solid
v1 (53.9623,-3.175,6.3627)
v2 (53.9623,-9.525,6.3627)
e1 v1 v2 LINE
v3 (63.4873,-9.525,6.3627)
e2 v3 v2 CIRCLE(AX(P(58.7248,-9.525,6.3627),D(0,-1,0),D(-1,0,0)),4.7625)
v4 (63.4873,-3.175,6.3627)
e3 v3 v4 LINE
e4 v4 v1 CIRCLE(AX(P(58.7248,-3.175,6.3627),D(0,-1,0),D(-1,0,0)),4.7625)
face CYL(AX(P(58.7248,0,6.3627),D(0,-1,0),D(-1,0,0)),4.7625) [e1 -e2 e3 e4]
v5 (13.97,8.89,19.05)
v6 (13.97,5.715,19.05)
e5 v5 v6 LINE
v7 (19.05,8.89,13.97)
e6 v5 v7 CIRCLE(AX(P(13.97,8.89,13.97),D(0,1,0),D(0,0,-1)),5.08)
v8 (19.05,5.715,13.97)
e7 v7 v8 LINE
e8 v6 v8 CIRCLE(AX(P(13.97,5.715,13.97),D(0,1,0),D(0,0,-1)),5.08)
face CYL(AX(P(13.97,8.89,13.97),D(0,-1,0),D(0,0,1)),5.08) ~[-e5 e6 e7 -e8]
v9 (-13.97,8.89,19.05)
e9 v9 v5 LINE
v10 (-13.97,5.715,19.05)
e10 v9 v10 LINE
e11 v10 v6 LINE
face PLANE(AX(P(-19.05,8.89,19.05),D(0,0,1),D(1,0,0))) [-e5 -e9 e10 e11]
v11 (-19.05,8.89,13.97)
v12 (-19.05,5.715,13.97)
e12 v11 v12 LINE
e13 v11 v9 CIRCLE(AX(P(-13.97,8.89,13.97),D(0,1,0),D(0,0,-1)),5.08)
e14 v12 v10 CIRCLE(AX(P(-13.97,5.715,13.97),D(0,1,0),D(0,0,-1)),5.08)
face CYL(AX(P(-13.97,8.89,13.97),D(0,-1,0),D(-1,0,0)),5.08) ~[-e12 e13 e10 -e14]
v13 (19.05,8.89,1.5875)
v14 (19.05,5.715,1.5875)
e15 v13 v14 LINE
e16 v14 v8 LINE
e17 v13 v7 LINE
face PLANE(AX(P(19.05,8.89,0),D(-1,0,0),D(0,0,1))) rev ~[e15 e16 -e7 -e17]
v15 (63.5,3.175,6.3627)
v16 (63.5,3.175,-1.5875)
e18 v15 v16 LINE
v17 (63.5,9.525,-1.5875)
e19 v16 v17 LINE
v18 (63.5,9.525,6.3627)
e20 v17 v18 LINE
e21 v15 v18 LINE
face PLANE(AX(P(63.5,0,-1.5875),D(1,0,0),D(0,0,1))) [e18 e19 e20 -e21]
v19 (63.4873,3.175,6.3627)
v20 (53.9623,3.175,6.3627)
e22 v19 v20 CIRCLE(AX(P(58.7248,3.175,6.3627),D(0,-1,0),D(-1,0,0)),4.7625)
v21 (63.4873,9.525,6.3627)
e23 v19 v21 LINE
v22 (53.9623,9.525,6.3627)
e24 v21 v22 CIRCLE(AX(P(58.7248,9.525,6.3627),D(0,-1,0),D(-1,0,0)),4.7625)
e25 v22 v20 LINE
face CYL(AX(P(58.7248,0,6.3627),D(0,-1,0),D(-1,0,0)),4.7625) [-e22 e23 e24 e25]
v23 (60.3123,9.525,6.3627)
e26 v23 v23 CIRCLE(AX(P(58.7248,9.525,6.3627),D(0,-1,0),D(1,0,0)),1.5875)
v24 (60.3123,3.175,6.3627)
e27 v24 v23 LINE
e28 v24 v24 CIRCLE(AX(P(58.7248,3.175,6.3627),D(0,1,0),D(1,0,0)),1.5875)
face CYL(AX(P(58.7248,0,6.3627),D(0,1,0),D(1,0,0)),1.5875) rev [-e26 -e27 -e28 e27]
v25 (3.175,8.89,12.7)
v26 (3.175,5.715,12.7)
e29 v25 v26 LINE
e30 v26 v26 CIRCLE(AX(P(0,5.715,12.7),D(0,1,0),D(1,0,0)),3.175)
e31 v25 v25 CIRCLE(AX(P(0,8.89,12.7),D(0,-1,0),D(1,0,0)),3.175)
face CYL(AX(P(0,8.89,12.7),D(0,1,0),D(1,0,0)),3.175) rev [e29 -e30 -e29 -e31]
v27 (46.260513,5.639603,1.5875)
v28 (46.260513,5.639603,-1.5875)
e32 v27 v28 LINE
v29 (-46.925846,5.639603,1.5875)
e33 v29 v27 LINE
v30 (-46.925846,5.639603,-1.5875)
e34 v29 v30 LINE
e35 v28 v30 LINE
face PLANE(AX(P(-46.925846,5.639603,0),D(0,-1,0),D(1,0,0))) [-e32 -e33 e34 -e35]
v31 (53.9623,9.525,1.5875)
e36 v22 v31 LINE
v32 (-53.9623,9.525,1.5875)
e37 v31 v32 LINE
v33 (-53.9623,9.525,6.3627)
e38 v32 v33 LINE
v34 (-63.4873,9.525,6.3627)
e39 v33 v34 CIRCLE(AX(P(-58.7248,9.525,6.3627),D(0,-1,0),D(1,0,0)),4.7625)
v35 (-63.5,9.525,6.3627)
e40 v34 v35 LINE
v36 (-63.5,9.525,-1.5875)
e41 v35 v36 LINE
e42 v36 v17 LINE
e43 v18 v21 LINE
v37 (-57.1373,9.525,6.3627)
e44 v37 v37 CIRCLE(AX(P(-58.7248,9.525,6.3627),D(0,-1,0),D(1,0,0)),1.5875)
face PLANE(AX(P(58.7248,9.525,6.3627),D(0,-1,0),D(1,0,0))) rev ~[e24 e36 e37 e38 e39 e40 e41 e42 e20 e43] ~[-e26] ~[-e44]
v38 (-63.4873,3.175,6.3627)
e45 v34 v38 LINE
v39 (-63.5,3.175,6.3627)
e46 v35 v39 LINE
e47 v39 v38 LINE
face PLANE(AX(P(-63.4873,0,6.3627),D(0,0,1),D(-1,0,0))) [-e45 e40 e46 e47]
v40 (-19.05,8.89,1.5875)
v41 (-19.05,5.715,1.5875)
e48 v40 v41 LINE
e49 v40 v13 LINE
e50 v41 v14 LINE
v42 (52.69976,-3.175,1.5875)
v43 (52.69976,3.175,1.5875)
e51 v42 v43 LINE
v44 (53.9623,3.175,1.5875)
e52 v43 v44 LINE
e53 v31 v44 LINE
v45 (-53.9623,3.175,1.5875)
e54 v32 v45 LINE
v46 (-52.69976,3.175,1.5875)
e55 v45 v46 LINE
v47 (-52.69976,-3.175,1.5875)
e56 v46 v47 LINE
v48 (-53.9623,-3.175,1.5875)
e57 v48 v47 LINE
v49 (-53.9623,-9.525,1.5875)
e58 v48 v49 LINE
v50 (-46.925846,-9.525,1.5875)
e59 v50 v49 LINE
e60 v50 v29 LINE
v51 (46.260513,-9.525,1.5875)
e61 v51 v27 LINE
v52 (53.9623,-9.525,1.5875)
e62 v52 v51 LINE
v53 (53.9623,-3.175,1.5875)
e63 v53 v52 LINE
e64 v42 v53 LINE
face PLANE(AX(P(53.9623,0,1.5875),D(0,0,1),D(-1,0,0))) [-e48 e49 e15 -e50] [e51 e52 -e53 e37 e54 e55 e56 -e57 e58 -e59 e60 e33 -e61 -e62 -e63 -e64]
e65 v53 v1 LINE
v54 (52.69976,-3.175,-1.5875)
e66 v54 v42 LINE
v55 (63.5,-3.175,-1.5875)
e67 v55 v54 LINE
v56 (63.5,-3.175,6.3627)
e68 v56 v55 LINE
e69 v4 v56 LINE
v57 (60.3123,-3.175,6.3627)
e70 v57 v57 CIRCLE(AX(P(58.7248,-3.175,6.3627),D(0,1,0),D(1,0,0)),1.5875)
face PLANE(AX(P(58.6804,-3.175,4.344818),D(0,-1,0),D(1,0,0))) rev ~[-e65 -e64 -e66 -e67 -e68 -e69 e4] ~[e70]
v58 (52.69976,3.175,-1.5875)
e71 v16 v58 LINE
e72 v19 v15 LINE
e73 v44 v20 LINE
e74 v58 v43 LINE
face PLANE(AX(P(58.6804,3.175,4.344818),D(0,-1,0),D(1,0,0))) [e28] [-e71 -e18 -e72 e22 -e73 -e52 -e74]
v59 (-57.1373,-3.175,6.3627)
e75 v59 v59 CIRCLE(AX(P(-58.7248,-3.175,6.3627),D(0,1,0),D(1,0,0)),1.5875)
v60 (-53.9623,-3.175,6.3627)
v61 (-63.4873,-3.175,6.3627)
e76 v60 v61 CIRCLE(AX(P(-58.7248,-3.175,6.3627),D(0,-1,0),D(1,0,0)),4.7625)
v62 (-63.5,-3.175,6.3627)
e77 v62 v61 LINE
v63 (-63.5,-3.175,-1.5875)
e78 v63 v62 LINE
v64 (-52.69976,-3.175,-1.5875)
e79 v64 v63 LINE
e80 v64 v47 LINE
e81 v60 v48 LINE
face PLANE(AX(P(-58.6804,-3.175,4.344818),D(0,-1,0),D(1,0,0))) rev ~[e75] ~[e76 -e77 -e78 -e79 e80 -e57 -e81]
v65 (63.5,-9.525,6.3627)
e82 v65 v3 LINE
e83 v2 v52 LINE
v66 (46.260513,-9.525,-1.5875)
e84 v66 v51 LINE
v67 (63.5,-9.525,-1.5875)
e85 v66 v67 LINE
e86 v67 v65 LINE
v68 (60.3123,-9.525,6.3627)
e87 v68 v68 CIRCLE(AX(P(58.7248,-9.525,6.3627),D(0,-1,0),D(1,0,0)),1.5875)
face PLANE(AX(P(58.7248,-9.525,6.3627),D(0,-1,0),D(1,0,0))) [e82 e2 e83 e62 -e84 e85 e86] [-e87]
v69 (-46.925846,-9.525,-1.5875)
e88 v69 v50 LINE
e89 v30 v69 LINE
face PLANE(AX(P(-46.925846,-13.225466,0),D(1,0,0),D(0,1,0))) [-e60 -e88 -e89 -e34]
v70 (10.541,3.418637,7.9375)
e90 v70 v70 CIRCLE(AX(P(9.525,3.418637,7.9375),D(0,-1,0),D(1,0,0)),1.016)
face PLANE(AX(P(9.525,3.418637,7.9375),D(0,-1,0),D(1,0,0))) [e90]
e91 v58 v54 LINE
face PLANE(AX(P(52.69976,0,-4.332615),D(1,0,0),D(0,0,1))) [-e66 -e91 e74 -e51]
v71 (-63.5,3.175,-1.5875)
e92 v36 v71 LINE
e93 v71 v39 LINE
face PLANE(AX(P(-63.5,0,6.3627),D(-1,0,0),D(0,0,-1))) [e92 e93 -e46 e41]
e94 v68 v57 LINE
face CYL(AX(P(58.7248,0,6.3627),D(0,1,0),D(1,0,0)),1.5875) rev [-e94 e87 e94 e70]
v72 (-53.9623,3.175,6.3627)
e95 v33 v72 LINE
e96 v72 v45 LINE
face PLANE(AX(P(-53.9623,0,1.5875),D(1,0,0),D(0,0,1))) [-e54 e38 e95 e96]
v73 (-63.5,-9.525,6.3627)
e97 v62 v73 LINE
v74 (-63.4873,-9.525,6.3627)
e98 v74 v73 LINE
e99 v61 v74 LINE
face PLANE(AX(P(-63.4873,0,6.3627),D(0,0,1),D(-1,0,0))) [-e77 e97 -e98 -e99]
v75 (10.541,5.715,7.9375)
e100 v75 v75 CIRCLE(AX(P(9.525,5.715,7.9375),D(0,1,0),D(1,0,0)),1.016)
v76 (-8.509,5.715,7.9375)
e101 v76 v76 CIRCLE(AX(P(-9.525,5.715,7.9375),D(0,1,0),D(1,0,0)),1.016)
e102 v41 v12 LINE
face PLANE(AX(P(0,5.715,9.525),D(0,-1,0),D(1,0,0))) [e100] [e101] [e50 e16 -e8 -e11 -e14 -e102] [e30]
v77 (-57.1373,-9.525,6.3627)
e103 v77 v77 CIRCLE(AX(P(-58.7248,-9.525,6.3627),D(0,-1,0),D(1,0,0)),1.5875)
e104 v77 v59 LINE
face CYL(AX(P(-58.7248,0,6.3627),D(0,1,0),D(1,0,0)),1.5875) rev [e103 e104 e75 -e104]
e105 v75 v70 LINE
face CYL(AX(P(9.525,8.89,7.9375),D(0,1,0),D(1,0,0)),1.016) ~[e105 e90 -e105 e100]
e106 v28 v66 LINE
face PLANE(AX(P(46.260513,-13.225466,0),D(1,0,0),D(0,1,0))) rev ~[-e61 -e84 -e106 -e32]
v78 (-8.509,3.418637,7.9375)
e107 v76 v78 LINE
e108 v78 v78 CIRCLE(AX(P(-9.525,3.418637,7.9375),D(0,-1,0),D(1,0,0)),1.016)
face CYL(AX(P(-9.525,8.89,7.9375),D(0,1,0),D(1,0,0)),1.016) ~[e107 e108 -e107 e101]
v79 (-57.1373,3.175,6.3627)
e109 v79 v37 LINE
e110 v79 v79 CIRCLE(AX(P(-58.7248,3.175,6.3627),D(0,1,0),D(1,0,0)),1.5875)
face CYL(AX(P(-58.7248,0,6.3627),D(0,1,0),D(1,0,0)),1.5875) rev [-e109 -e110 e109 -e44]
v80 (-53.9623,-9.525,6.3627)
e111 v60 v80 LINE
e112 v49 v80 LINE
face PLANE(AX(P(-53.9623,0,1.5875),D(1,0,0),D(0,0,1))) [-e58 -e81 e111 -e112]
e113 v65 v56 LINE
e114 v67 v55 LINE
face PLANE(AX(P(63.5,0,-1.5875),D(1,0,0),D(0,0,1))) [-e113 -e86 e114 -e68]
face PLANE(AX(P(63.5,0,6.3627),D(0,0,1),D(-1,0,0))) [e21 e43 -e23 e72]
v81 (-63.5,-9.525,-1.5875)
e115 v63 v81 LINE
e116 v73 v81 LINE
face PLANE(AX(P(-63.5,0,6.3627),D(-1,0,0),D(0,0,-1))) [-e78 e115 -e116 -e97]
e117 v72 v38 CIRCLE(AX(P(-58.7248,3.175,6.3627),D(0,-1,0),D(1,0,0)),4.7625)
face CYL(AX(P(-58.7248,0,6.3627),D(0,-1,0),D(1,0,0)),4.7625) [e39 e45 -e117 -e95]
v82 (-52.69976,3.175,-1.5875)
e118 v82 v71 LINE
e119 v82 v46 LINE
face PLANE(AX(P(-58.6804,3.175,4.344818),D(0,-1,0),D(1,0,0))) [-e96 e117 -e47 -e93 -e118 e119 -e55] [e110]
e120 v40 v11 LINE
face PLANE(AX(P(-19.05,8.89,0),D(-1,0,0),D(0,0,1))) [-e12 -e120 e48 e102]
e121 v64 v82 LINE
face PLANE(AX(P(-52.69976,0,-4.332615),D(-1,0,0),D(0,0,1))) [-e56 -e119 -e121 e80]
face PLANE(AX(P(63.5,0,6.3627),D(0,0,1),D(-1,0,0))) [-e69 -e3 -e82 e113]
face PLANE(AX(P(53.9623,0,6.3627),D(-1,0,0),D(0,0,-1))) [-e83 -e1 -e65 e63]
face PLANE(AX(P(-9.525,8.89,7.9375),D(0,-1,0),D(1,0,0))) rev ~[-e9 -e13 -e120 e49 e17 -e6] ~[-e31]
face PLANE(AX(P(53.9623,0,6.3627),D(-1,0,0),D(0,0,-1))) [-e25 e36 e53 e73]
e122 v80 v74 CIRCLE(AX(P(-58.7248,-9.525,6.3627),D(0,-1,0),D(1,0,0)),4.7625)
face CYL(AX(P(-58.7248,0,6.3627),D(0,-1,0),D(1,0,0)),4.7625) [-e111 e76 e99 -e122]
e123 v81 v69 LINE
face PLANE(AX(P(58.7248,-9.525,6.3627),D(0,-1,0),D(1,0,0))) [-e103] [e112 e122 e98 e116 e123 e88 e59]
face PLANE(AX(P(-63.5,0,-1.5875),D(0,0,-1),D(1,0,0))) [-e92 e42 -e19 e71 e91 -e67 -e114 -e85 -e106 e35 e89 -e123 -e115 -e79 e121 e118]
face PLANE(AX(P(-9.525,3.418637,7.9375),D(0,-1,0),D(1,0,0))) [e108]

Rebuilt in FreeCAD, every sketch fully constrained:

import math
import FreeCAD as App
import Part
import Sketcher
from FreeCAD import Vector
Q = App.Units.Quantity


def edges_at(feature, points):
    """Names of the edges that pass closest to the given points."""
    edges = feature.Shape.Edges
    near = lambda p: min(range(len(edges)), key=lambda i: edges[i].distToShape(Part.Vertex(*p))[0])
    return sorted({f"Edge{near(p) + 1}" for p in points})

doc = App.newDocument("Part")
body = doc.addObject("PartDesign::Body", "Body")

# Sketch on XZ plane
sketch1 = body.newObject("Sketcher::SketchObject", "Sketch")
sketch1.AttachmentSupport = (doc.getObject("XZ_Plane"), [""])
sketch1.MapMode = "FlatFace"
sketch1.addGeometry(Part.ArcOfCircle(Part.Circle(Vector(58.7248, 6.3627, 0), Vector(0, 0, 1), 4.7625), math.radians(0), math.radians(180)), False)
sketch1.addGeometry(Part.LineSegment(Vector(53.9623, 6.3627, 0), Vector(53.9623, 1.5875, 0)), False)
sketch1.addGeometry(Part.LineSegment(Vector(53.9623, 1.5875, 0), Vector(-53.9623, 1.5875, 0)), False)
sketch1.addGeometry(Part.LineSegment(Vector(-53.9623, 1.5875, 0), Vector(-53.9623, 6.3627, 0)), False)
sketch1.addGeometry(Part.ArcOfCircle(Part.Circle(Vector(-58.7248, 6.3627, 0), Vector(0, 0, 1), 4.7625), math.radians(0), math.radians(180)), False)
sketch1.addGeometry(Part.LineSegment(Vector(-63.4873, 6.3627, 0), Vector(-63.5, 6.3627, 0)), False)
sketch1.addGeometry(Part.LineSegment(Vector(-63.5, 6.3627, 0), Vector(-63.5, -1.5875, 0)), False)
sketch1.addGeometry(Part.LineSegment(Vector(-63.5, -1.5875, 0), Vector(63.5, -1.5875, 0)), False)
sketch1.addGeometry(Part.LineSegment(Vector(63.5, -1.5875, 0), Vector(63.5, 6.3627, 0)), False)
sketch1.addGeometry(Part.LineSegment(Vector(63.5, 6.3627, 0), Vector(63.4873, 6.3627, 0)), False)
sketch1.addGeometry(Part.Circle(Vector(58.7248, 6.3627, 0), Vector(0, 0, 1), 1.5875), False)
sketch1.addGeometry(Part.Circle(Vector(-58.7248, 6.3627, 0), Vector(0, 0, 1), 1.5875), False)
sketch1.addConstraint(Sketcher.Constraint("Tangent", 0, 2, 1, 1))
sketch1.addConstraint(Sketcher.Constraint("Coincident", 1, 2, 2, 1))
sketch1.addConstraint(Sketcher.Constraint("Coincident", 2, 2, 3, 1))
sketch1.addConstraint(Sketcher.Constraint("Tangent", 3, 2, 4, 1))
sketch1.addConstraint(Sketcher.Constraint("Coincident", 4, 2, 5, 1))
sketch1.addConstraint(Sketcher.Constraint("Coincident", 5, 2, 6, 1))
sketch1.addConstraint(Sketcher.Constraint("Coincident", 6, 2, 7, 1))
sketch1.addConstraint(Sketcher.Constraint("Coincident", 7, 2, 8, 1))
sketch1.addConstraint(Sketcher.Constraint("Coincident", 8, 2, 9, 1))
sketch1.addConstraint(Sketcher.Constraint("Coincident", 9, 2, 0, 1))
sketch1.addConstraint(Sketcher.Constraint("Vertical", 1))
sketch1.addConstraint(Sketcher.Constraint("Horizontal", 2))
sketch1.addConstraint(Sketcher.Constraint("Vertical", 3))
sketch1.addConstraint(Sketcher.Constraint("Horizontal", 5))
sketch1.addConstraint(Sketcher.Constraint("Vertical", 6))
sketch1.addConstraint(Sketcher.Constraint("Horizontal", 7))
sketch1.addConstraint(Sketcher.Constraint("Vertical", 8))
sketch1.addConstraint(Sketcher.Constraint("Horizontal", 9))
sketch1.addConstraint(Sketcher.Constraint("Coincident", 10, 3, 0, 3))
sketch1.addConstraint(Sketcher.Constraint("Coincident", 11, 3, 4, 3))
sketch1.addConstraint(Sketcher.Constraint("Equal", 0, 4))
sketch1.addConstraint(Sketcher.Constraint("Equal", 10, 11))
sketch1.addConstraint(Sketcher.Constraint("Symmetric", 0, 3, 4, 3, -2))
sketch1.addConstraint(Sketcher.Constraint("Symmetric", 5, 2, 8, 2, -2))
sketch1.addConstraint(Sketcher.Constraint("Horizontal", 3, 2, 4, 2))
sketch1.addConstraint(Sketcher.Constraint("DistanceX", 7, 1, 7, 2, Q("5 in")))
sketch1.addConstraint(Sketcher.Constraint("Diameter", 10, Q("0.125 in")))
sketch1.addConstraint(Sketcher.Constraint("Radius", 0, Q("0.1875 in")))
sketch1.addConstraint(Sketcher.Constraint("DistanceX", 2, 2, 2, 1, Q("4.249 in")))
sketch1.addConstraint(Sketcher.Constraint("DistanceY", 1, 2, 1, 1, Q("0.188 in")))
sketch1.addConstraint(Sketcher.Constraint("DistanceY", 6, 2, 6, 1, Q("0.313 in")))
sketch1.addConstraint(Sketcher.Constraint("DistanceY", -1, 1, 1, 2, Q("0.0625 in")))
pad1 = body.newObject("PartDesign::Pad", "Pad")
pad1.Profile = sketch1
pad1.Length = Q("0.75 in")
pad1.Midplane = True

# Sketch on XZ plane
sketch2 = body.newObject("Sketcher::SketchObject", "Sketch001")
sketch2.AttachmentSupport = (doc.getObject("XZ_Plane"), [""])
sketch2.MapMode = "FlatFace"
sketch2.addGeometry(Part.LineSegment(Vector(-64.661041, 13.022251, 0), Vector(-64.661041, -4.332615, 0)), False)
sketch2.addGeometry(Part.LineSegment(Vector(-64.661041, -4.332615, 0), Vector(-52.69976, -4.332615, 0)), False)
sketch2.addGeometry(Part.LineSegment(Vector(-52.69976, -4.332615, 0), Vector(-52.69976, 13.022251, 0)), False)
sketch2.addGeometry(Part.LineSegment(Vector(-52.69976, 13.022251, 0), Vector(-64.661041, 13.022251, 0)), False)
sketch2.addGeometry(Part.LineSegment(Vector(52.69976, 13.022251, 0), Vector(52.69976, -4.332615, 0)), False)
sketch2.addGeometry(Part.LineSegment(Vector(52.69976, -4.332615, 0), Vector(64.661041, -4.332615, 0)), False)
sketch2.addGeometry(Part.LineSegment(Vector(64.661041, -4.332615, 0), Vector(64.661041, 13.022251, 0)), False)
sketch2.addGeometry(Part.LineSegment(Vector(64.661041, 13.022251, 0), Vector(52.69976, 13.022251, 0)), False)
sketch2.addConstraint(Sketcher.Constraint("Coincident", 0, 2, 1, 1))
sketch2.addConstraint(Sketcher.Constraint("Coincident", 1, 2, 2, 1))
sketch2.addConstraint(Sketcher.Constraint("Coincident", 2, 2, 3, 1))
sketch2.addConstraint(Sketcher.Constraint("Coincident", 3, 2, 0, 1))
sketch2.addConstraint(Sketcher.Constraint("Coincident", 4, 2, 5, 1))
sketch2.addConstraint(Sketcher.Constraint("Coincident", 5, 2, 6, 1))
sketch2.addConstraint(Sketcher.Constraint("Coincident", 6, 2, 7, 1))
sketch2.addConstraint(Sketcher.Constraint("Coincident", 7, 2, 4, 1))
sketch2.addConstraint(Sketcher.Constraint("Vertical", 0))
sketch2.addConstraint(Sketcher.Constraint("Horizontal", 1))
sketch2.addConstraint(Sketcher.Constraint("Vertical", 2))
sketch2.addConstraint(Sketcher.Constraint("Horizontal", 3))
sketch2.addConstraint(Sketcher.Constraint("Vertical", 4))
sketch2.addConstraint(Sketcher.Constraint("Horizontal", 5))
sketch2.addConstraint(Sketcher.Constraint("Vertical", 6))
sketch2.addConstraint(Sketcher.Constraint("Horizontal", 7))
sketch2.addConstraint(Sketcher.Constraint("Symmetric", 1, 2, 4, 2, -2))
sketch2.addConstraint(Sketcher.Constraint("Symmetric", 3, 2, 6, 2, -2))
sketch2.addConstraint(Sketcher.Constraint("DistanceX", 1, 1, 1, 2, Q("11.961281 mm")))
sketch2.addConstraint(Sketcher.Constraint("DistanceX", 0, 2, 4, 2, Q("117.360801 mm")))
sketch2.addConstraint(Sketcher.Constraint("DistanceY", 0, 2, 0, 1, Q("17.354866 mm")))
sketch2.addConstraint(Sketcher.Constraint("DistanceY", -1, 1, 2, 2, Q("13.022251 mm")))
pocket1 = body.newObject("PartDesign::Pocket", "Pocket")
pocket1.Profile = sketch2
pocket1.Length = Q("0.25 in")
pocket1.Midplane = True

# Sketch on XZ plane
sketch3 = body.newObject("Sketcher::SketchObject", "Sketch002")
sketch3.AttachmentSupport = (doc.getObject("XZ_Plane"), [""])
sketch3.MapMode = "FlatFace"
sketch3.AttachmentOffset = App.Placement(Vector(0, 0, -0.35 * 25.4), App.Rotation())
sketch3.addGeometry(Part.LineSegment(Vector(-19.05, 19.05, 0), Vector(-19.05, 0, 0)), False)
sketch3.addGeometry(Part.LineSegment(Vector(-19.05, 0, 0), Vector(19.05, 0, 0)), False)
sketch3.addGeometry(Part.LineSegment(Vector(19.05, 0, 0), Vector(19.05, 19.05, 0)), False)
sketch3.addGeometry(Part.LineSegment(Vector(19.05, 19.05, 0), Vector(-19.05, 19.05, 0)), False)
sketch3.addConstraint(Sketcher.Constraint("Coincident", 0, 2, 1, 1))
sketch3.addConstraint(Sketcher.Constraint("Coincident", 1, 2, 2, 1))
sketch3.addConstraint(Sketcher.Constraint("Coincident", 2, 2, 3, 1))
sketch3.addConstraint(Sketcher.Constraint("Coincident", 3, 2, 0, 1))
sketch3.addConstraint(Sketcher.Constraint("Vertical", 0))
sketch3.addConstraint(Sketcher.Constraint("Horizontal", 1))
sketch3.addConstraint(Sketcher.Constraint("Vertical", 2))
sketch3.addConstraint(Sketcher.Constraint("Horizontal", 3))
sketch3.addConstraint(Sketcher.Constraint("Symmetric", 0, 2, 1, 2, -1, 1))
sketch3.addConstraint(Sketcher.Constraint("DistanceX", 1, 1, 1, 2, Q("1.5 in")))
sketch3.addConstraint(Sketcher.Constraint("DistanceY", 0, 2, 0, 1, Q("0.75 in")))
pad2 = body.newObject("PartDesign::Pad", "Pad001")
pad2.Profile = sketch3
pad2.Length = Q("0.125 in")

# Sketch on XZ plane
sketch4 = body.newObject("Sketcher::SketchObject", "Sketch003")
sketch4.AttachmentSupport = (doc.getObject("XZ_Plane"), [""])
sketch4.MapMode = "FlatFace"
sketch4.AttachmentOffset = App.Placement(Vector(0, 0, -0.35 * 25.4), App.Rotation())
sketch4.addGeometry(Part.Circle(Vector(-9.525, 7.9375, 0), Vector(0, 0, 1), 1.016), False)
sketch4.addGeometry(Part.Circle(Vector(9.525, 7.9375, 0), Vector(0, 0, 1), 1.016), False)
sketch4.addConstraint(Sketcher.Constraint("Equal", 0, 1))
sketch4.addConstraint(Sketcher.Constraint("Symmetric", 0, 3, 1, 3, -2))
sketch4.addConstraint(Sketcher.Constraint("Diameter", 0, Q("0.08 in")))
sketch4.addConstraint(Sketcher.Constraint("DistanceX", 0, 3, 1, 3, Q("0.75 in")))
sketch4.addConstraint(Sketcher.Constraint("DistanceY", -1, 1, 0, 3, Q("0.3125 in")))
pad3 = body.newObject("PartDesign::Pad", "Pad002")
pad3.Profile = sketch4
pad3.Length = 5.471363
doc.recompute()

fillet = body.newObject("PartDesign::Fillet", "Fillet")
fillet.Base = (pad3, edges_at(pad3, [(19.05, 7.303, 19.05), (-19.05, 7.303, 19.05)]))
fillet.Radius = Q("0.2 in")

# Sketch on XY plane
sketch5 = body.newObject("Sketcher::SketchObject", "Sketch004")
sketch5.AttachmentSupport = (doc.getObject("XY_Plane"), [""])
sketch5.MapMode = "FlatFace"
sketch5.addGeometry(Part.LineSegment(Vector(-46.925846, 5.639603, 0), Vector(-46.925846, -13.225466, 0)), False)
sketch5.addGeometry(Part.LineSegment(Vector(-46.925846, -13.225466, 0), Vector(46.260513, -13.225466, 0)), False)
sketch5.addGeometry(Part.LineSegment(Vector(46.260513, -13.225466, 0), Vector(46.260513, 5.639603, 0)), False)
sketch5.addGeometry(Part.LineSegment(Vector(46.260513, 5.639603, 0), Vector(-46.925846, 5.639603, 0)), False)
sketch5.addConstraint(Sketcher.Constraint("Coincident", 0, 2, 1, 1))
sketch5.addConstraint(Sketcher.Constraint("Coincident", 1, 2, 2, 1))
sketch5.addConstraint(Sketcher.Constraint("Coincident", 2, 2, 3, 1))
sketch5.addConstraint(Sketcher.Constraint("Coincident", 3, 2, 0, 1))
sketch5.addConstraint(Sketcher.Constraint("Vertical", 0))
sketch5.addConstraint(Sketcher.Constraint("Horizontal", 1))
sketch5.addConstraint(Sketcher.Constraint("Vertical", 2))
sketch5.addConstraint(Sketcher.Constraint("Horizontal", 3))
sketch5.addConstraint(Sketcher.Constraint("DistanceX", 1, 1, 1, 2, Q("93.18636 mm")))
sketch5.addConstraint(Sketcher.Constraint("DistanceY", 0, 2, 0, 1, Q("18.865069 mm")))
sketch5.addConstraint(Sketcher.Constraint("DistanceX", 0, 2, -1, 1, Q("46.925846 mm")))
sketch5.addConstraint(Sketcher.Constraint("DistanceY", 0, 2, -1, 1, Q("13.225466 mm")))
pocket2 = body.newObject("PartDesign::Pocket", "Pocket001")
pocket2.Profile = sketch5
pocket2.Length = Q("0.25 in")
pocket2.Midplane = True

# Sketch on XZ plane
sketch6 = body.newObject("Sketcher::SketchObject", "Sketch005")
sketch6.AttachmentSupport = (doc.getObject("XZ_Plane"), [""])
sketch6.MapMode = "FlatFace"
sketch6.AttachmentOffset = App.Placement(Vector(0, 0, -0.35 * 25.4), App.Rotation())
sketch6.addGeometry(Part.Circle(Vector(0, 12.7, 0), Vector(0, 0, 1), 3.175), False)
sketch6.addConstraint(Sketcher.Constraint("PointOnObject", 0, 3, -2))
sketch6.addConstraint(Sketcher.Constraint("Diameter", 0, Q("0.25 in")))
sketch6.addConstraint(Sketcher.Constraint("DistanceY", -1, 1, 0, 3, Q("0.5 in")))
pocket3 = body.newObject("PartDesign::Pocket", "Pocket002")
pocket3.Profile = sketch6
pocket3.Length = 9.510212
pocket3.Reversed = True

doc.recompute()
